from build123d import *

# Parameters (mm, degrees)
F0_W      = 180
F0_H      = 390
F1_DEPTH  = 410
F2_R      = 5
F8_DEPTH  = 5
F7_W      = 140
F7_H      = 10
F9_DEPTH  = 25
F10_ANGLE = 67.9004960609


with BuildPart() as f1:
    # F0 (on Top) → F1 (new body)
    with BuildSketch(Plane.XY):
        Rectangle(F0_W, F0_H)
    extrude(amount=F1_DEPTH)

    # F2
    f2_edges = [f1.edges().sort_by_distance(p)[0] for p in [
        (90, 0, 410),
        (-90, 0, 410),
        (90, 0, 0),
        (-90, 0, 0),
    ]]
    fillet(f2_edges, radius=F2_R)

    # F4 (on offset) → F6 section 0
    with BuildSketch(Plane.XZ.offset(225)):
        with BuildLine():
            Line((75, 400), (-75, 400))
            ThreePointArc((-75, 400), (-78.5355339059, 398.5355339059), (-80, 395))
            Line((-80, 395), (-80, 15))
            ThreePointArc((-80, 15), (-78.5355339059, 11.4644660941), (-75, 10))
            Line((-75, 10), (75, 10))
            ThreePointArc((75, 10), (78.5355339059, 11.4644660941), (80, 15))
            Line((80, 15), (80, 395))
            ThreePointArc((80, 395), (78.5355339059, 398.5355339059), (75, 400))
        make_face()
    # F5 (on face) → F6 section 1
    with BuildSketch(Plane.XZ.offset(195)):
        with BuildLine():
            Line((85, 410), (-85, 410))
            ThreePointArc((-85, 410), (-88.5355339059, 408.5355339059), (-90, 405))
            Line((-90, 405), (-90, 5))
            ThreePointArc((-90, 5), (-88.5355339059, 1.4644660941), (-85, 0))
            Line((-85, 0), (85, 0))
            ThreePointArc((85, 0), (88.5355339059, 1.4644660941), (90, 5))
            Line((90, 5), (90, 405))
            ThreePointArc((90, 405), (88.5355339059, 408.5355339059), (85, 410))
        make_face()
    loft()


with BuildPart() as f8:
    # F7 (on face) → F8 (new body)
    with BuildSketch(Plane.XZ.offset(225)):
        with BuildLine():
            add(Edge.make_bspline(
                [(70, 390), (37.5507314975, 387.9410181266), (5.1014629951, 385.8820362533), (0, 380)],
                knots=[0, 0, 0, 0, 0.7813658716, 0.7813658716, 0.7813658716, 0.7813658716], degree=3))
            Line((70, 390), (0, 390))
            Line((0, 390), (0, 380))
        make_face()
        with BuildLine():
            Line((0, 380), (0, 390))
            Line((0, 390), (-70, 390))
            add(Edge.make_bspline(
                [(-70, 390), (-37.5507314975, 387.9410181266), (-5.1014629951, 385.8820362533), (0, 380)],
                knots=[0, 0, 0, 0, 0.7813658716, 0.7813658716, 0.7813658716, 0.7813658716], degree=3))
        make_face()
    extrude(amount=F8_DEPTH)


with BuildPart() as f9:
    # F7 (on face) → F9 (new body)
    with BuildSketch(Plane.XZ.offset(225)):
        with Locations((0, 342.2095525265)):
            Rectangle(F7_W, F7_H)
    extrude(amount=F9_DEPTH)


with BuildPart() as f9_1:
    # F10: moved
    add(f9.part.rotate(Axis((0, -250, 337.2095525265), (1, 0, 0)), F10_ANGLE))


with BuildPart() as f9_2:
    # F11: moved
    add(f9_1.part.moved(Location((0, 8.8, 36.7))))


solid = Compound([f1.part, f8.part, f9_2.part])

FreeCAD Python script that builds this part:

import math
import FreeCAD as App
import Part
import Sketcher

V = App.Vector


def edges_at(feature, points):
    """Names of the edges that pass closest to the given points."""
    edges = feature.Shape.Edges
    near = lambda p: min(range(len(edges)), key=lambda i: edges[i].distToShape(Part.Vertex(*p))[0])
    return sorted({f"Edge{near(p) + 1}" for p in points})


def add_polygon(sketch, points):
    """Adds a closed chain of lines whose ends are joined by coincident constraints."""
    first, n = sketch.GeometryCount, len(points)
    for a, b in zip(points, points[1:] + points[:1]):
        sketch.addGeometry(Part.LineSegment(App.Vector(*a, 0), App.Vector(*b, 0)), False)
    for i in range(n):
        sketch.addConstraint(Sketcher.Constraint("Coincident", first + i, 2, first + (i + 1) % n, 1))

doc = App.newDocument("Part")
body = doc.addObject("PartDesign::Body", "Body")

# Sketch on XY plane
sketch1 = body.newObject("Sketcher::SketchObject", "Sketch")
sketch1.AttachmentSupport = (doc.getObject("XY_Plane"), [""])
sketch1.MapMode = "FlatFace"
add_polygon(sketch1, [(-90, 195), (-90, -195), (90, -195), (90, 195)])  # lines 0-3
sketch1.addConstraint([
    Sketcher.Constraint("Vertical", 0),
    Sketcher.Constraint("Horizontal", 1),
    Sketcher.Constraint("Vertical", 2),
    Sketcher.Constraint("Horizontal", 3),
    Sketcher.Constraint("Symmetric", 0, 2, 2, 2, -1, 1),
    Sketcher.Constraint("DistanceX", 1, 1, 1, 2, 180.0),
    Sketcher.Constraint("DistanceY", 0, 2, 0, 1, 390.0),
])
pad1 = body.newObject("PartDesign::Pad", "Pad")
pad1.Profile = sketch1
pad1.Length = 410
doc.recompute()

fillet = body.newObject("PartDesign::Fillet", "Fillet")
fillet.Base = (pad1, edges_at(pad1, [
    (90, 0, 410),
    (-90, 0, 410),
    (90, 0, 0),
    (-90, 0, 0),
]))
fillet.Radius = 5

# Sketch on XZ plane
sketch2 = body.newObject("Sketcher::SketchObject", "Sketch001")
sketch2.AttachmentSupport = (doc.getObject("XZ_Plane"), [""])
sketch2.MapMode = "FlatFace"
sketch2.AttachmentOffset = App.Placement(V(0, 0, 225), App.Rotation())
sketch2.addGeometry([
    Part.LineSegment(V(75, 400, 0), V(-75, 400, 0)),  # 0
    Part.ArcOfCircle(Part.Circle(V(-75, 395, 0), V(0, 0, 1), 5), math.radians(90), math.radians(180)),  # 1
    Part.LineSegment(V(-80, 395, 0), V(-80, 15, 0)),  # 2
    Part.ArcOfCircle(Part.Circle(V(-75, 15, 0), V(0, 0, 1), 5), math.radians(180), math.radians(270)),  # 3
    Part.LineSegment(V(-75, 10, 0), V(75, 10, 0)),  # 4
    Part.ArcOfCircle(Part.Circle(V(75, 15, 0), V(0, 0, 1), 5), math.radians(-90), math.radians(0)),  # 5
    Part.LineSegment(V(80, 15, 0), V(80, 395, 0)),  # 6
    Part.ArcOfCircle(Part.Circle(V(75, 395, 0), V(0, 0, 1), 5), math.radians(0), math.radians(90)),  # 7
], False)
sketch2.addConstraint([
    Sketcher.Constraint("Tangent", 0, 2, 1, 1),
    Sketcher.Constraint("Tangent", 1, 2, 2, 1),
    Sketcher.Constraint("Tangent", 2, 2, 3, 1),
    Sketcher.Constraint("Tangent", 3, 2, 4, 1),
    Sketcher.Constraint("Tangent", 4, 2, 5, 1),
    Sketcher.Constraint("Tangent", 5, 2, 6, 1),
    Sketcher.Constraint("Tangent", 6, 2, 7, 1),
    Sketcher.Constraint("Tangent", 7, 2, 0, 1),
    Sketcher.Constraint("Horizontal", 0),
    Sketcher.Constraint("Vertical", 2),
    Sketcher.Constraint("Horizontal", 4),
    Sketcher.Constraint("Vertical", 6),
    Sketcher.Constraint("Equal", 1, 3),
    Sketcher.Constraint("Equal", 3, 5),
    Sketcher.Constraint("Equal", 5, 7),
    Sketcher.Constraint("Radius", 1, 5.0),
    Sketcher.Constraint("DistanceX", 0, 2, 0, 1, 150.0),
    Sketcher.Constraint("DistanceY", 2, 2, 2, 1, 380.0),
    Sketcher.Constraint("DistanceX", 1, 3, -1, 1, 75.0),
    Sketcher.Constraint("DistanceY", -1, 1, 1, 3, 395.0),
])

# Sketch on XZ plane
sketch3 = body.newObject("Sketcher::SketchObject", "Sketch002")
sketch3.AttachmentSupport = (doc.getObject("XZ_Plane"), [""])
sketch3.MapMode = "FlatFace"
sketch3.AttachmentOffset = App.Placement(V(0, 0, 195), App.Rotation())
sketch3.addGeometry([
    Part.LineSegment(V(85, 410, 0), V(-85, 410, 0)),  # 0
    Part.ArcOfCircle(Part.Circle(V(-85, 405, 0), V(0, 0, 1), 5), math.radians(90), math.radians(180)),  # 1
    Part.LineSegment(V(-90, 405, 0), V(-90, 5, 0)),  # 2
    Part.ArcOfCircle(Part.Circle(V(-85, 5, 0), V(0, 0, 1), 5), math.radians(180), math.radians(270)),  # 3
    Part.LineSegment(V(-85, 0, 0), V(85, 0, 0)),  # 4
    Part.ArcOfCircle(Part.Circle(V(85, 5, 0), V(0, 0, 1), 5), math.radians(-90), math.radians(0)),  # 5
    Part.LineSegment(V(90, 5, 0), V(90, 405, 0)),  # 6
    Part.ArcOfCircle(Part.Circle(V(85, 405, 0), V(0, 0, 1), 5), math.radians(0), math.radians(90)),  # 7
], False)
sketch3.addConstraint([
    Sketcher.Constraint("Tangent", 0, 2, 1, 1),
    Sketcher.Constraint("Tangent", 1, 2, 2, 1),
    Sketcher.Constraint("Tangent", 2, 2, 3, 1),
    Sketcher.Constraint("Tangent", 3, 2, 4, 1),
    Sketcher.Constraint("Tangent", 4, 2, 5, 1),
    Sketcher.Constraint("Tangent", 5, 2, 6, 1),
    Sketcher.Constraint("Tangent", 6, 2, 7, 1),
    Sketcher.Constraint("Tangent", 7, 2, 0, 1),
    Sketcher.Constraint("Horizontal", 0),
    Sketcher.Constraint("Vertical", 2),
    Sketcher.Constraint("Horizontal", 4),
    Sketcher.Constraint("Vertical", 6),
    Sketcher.Constraint("Equal", 1, 3),
    Sketcher.Constraint("Equal", 3, 5),
    Sketcher.Constraint("Equal", 5, 7),
    Sketcher.Constraint("Symmetric", 3, 2, 4, 2, -1, 1),
    Sketcher.Constraint("Radius", 1, 5.0),
    Sketcher.Constraint("DistanceX", 0, 2, 0, 1, 170.0),
    Sketcher.Constraint("DistanceY", 2, 2, 2, 1, 400.0),
])

additiveloft = body.newObject("PartDesign::AdditiveLoft", "AdditiveLoft")
additiveloft.Profile = sketch2
additiveloft.Sections = [sketch3]
body2 = doc.addObject("PartDesign::Body", "Body001")

# Sketch on XZ plane
sketch4 = body2.newObject("Sketcher::SketchObject", "Sketch003")
sketch4.AttachmentSupport = (doc.getObject("XZ_Plane001"), [""])
sketch4.MapMode = "FlatFace"
sketch4.AttachmentOffset = App.Placement(V(0, 0, 225), App.Rotation())
sketch4.addGeometry([
    Part.BSplineCurve([V(70, 390, 0), V(37.550731, 387.941018, 0), V(5.101463, 385.882036, 0), V(0, 380, 0)], [4, 4], [0, 0.781365872], False, 3, [1, 1, 1, 1], False),
    Part.LineSegment(V(70, 390, 0), V(-70, 390, 0)),
    Part.BSplineCurve([V(-70, 390, 0), V(-37.550731, 387.941018, 0), V(-5.101463, 385.882036, 0), V(0, 380, 0)], [4, 4], [0, 0.781365872], False, 3, [1, 1, 1, 1], False),
], False)
sketch4.addConstraint([
    Sketcher.Constraint("Block", 0),
    Sketcher.Constraint("Block", 2),
    Sketcher.Constraint("Coincident", 0, 1, 1, 1),
    Sketcher.Constraint("Coincident", 1, 2, 2, 1),
])
pad2 = body2.newObject("PartDesign::Pad", "Pad001")
pad2.Profile = sketch4
pad2.Length = 5
body3 = doc.addObject("PartDesign::Body", "Body002")

# Sketch on XZ plane
sketch5 = body3.newObject("Sketcher::SketchObject", "Sketch004")
sketch5.AttachmentSupport = (doc.getObject("XZ_Plane002"), [""])
sketch5.MapMode = "FlatFace"
sketch5.AttachmentOffset = App.Placement(V(0, 0, 225), App.Rotation())
add_polygon(sketch5, [(-70, 347.209553), (-70, 337.209553), (70, 337.209553), (70, 347.209553)])  # lines 0-3
sketch5.addConstraint([
    Sketcher.Constraint("Vertical", 0),
    Sketcher.Constraint("Horizontal", 1),
    Sketcher.Constraint("Vertical", 2),
    Sketcher.Constraint("Horizontal", 3),
    Sketcher.Constraint("DistanceX", 1, 1, 1, 2, 140.0),
    Sketcher.Constraint("DistanceY", 0, 2, 0, 1, 10.0),
    Sketcher.Constraint("DistanceX", 0, 2, -1, 1, 70.0),
    Sketcher.Constraint("DistanceY", -1, 1, 0, 2, 337.209553),
])
pad3 = body3.newObject("PartDesign::Pad", "Pad002")
pad3.Profile = sketch5
pad3.Length = 25
body4 = doc.addObject("PartDesign::Body", "Body003")
doc.recompute()

body3.Placement = App.Placement(V(0, 156.489464, 441.978814), App.Rotation(V(1, 0, 0), 67.900496))
boolean = body4.newObject("PartDesign::Boolean", "Boolean")
boolean.Type = "Fuse"
boolean.addObjects([body3])
body5 = doc.addObject("PartDesign::Body", "Body004")
doc.recompute()

body4.Placement = App.Placement(V(0, 8.8, 36.7), App.Rotation(V(0, 0, 1), 0))
boolean2 = body5.newObject("PartDesign::Boolean", "Boolean001")
boolean2.Type = "Fuse"
boolean2.addObjects([body4])

doc.recompute()
